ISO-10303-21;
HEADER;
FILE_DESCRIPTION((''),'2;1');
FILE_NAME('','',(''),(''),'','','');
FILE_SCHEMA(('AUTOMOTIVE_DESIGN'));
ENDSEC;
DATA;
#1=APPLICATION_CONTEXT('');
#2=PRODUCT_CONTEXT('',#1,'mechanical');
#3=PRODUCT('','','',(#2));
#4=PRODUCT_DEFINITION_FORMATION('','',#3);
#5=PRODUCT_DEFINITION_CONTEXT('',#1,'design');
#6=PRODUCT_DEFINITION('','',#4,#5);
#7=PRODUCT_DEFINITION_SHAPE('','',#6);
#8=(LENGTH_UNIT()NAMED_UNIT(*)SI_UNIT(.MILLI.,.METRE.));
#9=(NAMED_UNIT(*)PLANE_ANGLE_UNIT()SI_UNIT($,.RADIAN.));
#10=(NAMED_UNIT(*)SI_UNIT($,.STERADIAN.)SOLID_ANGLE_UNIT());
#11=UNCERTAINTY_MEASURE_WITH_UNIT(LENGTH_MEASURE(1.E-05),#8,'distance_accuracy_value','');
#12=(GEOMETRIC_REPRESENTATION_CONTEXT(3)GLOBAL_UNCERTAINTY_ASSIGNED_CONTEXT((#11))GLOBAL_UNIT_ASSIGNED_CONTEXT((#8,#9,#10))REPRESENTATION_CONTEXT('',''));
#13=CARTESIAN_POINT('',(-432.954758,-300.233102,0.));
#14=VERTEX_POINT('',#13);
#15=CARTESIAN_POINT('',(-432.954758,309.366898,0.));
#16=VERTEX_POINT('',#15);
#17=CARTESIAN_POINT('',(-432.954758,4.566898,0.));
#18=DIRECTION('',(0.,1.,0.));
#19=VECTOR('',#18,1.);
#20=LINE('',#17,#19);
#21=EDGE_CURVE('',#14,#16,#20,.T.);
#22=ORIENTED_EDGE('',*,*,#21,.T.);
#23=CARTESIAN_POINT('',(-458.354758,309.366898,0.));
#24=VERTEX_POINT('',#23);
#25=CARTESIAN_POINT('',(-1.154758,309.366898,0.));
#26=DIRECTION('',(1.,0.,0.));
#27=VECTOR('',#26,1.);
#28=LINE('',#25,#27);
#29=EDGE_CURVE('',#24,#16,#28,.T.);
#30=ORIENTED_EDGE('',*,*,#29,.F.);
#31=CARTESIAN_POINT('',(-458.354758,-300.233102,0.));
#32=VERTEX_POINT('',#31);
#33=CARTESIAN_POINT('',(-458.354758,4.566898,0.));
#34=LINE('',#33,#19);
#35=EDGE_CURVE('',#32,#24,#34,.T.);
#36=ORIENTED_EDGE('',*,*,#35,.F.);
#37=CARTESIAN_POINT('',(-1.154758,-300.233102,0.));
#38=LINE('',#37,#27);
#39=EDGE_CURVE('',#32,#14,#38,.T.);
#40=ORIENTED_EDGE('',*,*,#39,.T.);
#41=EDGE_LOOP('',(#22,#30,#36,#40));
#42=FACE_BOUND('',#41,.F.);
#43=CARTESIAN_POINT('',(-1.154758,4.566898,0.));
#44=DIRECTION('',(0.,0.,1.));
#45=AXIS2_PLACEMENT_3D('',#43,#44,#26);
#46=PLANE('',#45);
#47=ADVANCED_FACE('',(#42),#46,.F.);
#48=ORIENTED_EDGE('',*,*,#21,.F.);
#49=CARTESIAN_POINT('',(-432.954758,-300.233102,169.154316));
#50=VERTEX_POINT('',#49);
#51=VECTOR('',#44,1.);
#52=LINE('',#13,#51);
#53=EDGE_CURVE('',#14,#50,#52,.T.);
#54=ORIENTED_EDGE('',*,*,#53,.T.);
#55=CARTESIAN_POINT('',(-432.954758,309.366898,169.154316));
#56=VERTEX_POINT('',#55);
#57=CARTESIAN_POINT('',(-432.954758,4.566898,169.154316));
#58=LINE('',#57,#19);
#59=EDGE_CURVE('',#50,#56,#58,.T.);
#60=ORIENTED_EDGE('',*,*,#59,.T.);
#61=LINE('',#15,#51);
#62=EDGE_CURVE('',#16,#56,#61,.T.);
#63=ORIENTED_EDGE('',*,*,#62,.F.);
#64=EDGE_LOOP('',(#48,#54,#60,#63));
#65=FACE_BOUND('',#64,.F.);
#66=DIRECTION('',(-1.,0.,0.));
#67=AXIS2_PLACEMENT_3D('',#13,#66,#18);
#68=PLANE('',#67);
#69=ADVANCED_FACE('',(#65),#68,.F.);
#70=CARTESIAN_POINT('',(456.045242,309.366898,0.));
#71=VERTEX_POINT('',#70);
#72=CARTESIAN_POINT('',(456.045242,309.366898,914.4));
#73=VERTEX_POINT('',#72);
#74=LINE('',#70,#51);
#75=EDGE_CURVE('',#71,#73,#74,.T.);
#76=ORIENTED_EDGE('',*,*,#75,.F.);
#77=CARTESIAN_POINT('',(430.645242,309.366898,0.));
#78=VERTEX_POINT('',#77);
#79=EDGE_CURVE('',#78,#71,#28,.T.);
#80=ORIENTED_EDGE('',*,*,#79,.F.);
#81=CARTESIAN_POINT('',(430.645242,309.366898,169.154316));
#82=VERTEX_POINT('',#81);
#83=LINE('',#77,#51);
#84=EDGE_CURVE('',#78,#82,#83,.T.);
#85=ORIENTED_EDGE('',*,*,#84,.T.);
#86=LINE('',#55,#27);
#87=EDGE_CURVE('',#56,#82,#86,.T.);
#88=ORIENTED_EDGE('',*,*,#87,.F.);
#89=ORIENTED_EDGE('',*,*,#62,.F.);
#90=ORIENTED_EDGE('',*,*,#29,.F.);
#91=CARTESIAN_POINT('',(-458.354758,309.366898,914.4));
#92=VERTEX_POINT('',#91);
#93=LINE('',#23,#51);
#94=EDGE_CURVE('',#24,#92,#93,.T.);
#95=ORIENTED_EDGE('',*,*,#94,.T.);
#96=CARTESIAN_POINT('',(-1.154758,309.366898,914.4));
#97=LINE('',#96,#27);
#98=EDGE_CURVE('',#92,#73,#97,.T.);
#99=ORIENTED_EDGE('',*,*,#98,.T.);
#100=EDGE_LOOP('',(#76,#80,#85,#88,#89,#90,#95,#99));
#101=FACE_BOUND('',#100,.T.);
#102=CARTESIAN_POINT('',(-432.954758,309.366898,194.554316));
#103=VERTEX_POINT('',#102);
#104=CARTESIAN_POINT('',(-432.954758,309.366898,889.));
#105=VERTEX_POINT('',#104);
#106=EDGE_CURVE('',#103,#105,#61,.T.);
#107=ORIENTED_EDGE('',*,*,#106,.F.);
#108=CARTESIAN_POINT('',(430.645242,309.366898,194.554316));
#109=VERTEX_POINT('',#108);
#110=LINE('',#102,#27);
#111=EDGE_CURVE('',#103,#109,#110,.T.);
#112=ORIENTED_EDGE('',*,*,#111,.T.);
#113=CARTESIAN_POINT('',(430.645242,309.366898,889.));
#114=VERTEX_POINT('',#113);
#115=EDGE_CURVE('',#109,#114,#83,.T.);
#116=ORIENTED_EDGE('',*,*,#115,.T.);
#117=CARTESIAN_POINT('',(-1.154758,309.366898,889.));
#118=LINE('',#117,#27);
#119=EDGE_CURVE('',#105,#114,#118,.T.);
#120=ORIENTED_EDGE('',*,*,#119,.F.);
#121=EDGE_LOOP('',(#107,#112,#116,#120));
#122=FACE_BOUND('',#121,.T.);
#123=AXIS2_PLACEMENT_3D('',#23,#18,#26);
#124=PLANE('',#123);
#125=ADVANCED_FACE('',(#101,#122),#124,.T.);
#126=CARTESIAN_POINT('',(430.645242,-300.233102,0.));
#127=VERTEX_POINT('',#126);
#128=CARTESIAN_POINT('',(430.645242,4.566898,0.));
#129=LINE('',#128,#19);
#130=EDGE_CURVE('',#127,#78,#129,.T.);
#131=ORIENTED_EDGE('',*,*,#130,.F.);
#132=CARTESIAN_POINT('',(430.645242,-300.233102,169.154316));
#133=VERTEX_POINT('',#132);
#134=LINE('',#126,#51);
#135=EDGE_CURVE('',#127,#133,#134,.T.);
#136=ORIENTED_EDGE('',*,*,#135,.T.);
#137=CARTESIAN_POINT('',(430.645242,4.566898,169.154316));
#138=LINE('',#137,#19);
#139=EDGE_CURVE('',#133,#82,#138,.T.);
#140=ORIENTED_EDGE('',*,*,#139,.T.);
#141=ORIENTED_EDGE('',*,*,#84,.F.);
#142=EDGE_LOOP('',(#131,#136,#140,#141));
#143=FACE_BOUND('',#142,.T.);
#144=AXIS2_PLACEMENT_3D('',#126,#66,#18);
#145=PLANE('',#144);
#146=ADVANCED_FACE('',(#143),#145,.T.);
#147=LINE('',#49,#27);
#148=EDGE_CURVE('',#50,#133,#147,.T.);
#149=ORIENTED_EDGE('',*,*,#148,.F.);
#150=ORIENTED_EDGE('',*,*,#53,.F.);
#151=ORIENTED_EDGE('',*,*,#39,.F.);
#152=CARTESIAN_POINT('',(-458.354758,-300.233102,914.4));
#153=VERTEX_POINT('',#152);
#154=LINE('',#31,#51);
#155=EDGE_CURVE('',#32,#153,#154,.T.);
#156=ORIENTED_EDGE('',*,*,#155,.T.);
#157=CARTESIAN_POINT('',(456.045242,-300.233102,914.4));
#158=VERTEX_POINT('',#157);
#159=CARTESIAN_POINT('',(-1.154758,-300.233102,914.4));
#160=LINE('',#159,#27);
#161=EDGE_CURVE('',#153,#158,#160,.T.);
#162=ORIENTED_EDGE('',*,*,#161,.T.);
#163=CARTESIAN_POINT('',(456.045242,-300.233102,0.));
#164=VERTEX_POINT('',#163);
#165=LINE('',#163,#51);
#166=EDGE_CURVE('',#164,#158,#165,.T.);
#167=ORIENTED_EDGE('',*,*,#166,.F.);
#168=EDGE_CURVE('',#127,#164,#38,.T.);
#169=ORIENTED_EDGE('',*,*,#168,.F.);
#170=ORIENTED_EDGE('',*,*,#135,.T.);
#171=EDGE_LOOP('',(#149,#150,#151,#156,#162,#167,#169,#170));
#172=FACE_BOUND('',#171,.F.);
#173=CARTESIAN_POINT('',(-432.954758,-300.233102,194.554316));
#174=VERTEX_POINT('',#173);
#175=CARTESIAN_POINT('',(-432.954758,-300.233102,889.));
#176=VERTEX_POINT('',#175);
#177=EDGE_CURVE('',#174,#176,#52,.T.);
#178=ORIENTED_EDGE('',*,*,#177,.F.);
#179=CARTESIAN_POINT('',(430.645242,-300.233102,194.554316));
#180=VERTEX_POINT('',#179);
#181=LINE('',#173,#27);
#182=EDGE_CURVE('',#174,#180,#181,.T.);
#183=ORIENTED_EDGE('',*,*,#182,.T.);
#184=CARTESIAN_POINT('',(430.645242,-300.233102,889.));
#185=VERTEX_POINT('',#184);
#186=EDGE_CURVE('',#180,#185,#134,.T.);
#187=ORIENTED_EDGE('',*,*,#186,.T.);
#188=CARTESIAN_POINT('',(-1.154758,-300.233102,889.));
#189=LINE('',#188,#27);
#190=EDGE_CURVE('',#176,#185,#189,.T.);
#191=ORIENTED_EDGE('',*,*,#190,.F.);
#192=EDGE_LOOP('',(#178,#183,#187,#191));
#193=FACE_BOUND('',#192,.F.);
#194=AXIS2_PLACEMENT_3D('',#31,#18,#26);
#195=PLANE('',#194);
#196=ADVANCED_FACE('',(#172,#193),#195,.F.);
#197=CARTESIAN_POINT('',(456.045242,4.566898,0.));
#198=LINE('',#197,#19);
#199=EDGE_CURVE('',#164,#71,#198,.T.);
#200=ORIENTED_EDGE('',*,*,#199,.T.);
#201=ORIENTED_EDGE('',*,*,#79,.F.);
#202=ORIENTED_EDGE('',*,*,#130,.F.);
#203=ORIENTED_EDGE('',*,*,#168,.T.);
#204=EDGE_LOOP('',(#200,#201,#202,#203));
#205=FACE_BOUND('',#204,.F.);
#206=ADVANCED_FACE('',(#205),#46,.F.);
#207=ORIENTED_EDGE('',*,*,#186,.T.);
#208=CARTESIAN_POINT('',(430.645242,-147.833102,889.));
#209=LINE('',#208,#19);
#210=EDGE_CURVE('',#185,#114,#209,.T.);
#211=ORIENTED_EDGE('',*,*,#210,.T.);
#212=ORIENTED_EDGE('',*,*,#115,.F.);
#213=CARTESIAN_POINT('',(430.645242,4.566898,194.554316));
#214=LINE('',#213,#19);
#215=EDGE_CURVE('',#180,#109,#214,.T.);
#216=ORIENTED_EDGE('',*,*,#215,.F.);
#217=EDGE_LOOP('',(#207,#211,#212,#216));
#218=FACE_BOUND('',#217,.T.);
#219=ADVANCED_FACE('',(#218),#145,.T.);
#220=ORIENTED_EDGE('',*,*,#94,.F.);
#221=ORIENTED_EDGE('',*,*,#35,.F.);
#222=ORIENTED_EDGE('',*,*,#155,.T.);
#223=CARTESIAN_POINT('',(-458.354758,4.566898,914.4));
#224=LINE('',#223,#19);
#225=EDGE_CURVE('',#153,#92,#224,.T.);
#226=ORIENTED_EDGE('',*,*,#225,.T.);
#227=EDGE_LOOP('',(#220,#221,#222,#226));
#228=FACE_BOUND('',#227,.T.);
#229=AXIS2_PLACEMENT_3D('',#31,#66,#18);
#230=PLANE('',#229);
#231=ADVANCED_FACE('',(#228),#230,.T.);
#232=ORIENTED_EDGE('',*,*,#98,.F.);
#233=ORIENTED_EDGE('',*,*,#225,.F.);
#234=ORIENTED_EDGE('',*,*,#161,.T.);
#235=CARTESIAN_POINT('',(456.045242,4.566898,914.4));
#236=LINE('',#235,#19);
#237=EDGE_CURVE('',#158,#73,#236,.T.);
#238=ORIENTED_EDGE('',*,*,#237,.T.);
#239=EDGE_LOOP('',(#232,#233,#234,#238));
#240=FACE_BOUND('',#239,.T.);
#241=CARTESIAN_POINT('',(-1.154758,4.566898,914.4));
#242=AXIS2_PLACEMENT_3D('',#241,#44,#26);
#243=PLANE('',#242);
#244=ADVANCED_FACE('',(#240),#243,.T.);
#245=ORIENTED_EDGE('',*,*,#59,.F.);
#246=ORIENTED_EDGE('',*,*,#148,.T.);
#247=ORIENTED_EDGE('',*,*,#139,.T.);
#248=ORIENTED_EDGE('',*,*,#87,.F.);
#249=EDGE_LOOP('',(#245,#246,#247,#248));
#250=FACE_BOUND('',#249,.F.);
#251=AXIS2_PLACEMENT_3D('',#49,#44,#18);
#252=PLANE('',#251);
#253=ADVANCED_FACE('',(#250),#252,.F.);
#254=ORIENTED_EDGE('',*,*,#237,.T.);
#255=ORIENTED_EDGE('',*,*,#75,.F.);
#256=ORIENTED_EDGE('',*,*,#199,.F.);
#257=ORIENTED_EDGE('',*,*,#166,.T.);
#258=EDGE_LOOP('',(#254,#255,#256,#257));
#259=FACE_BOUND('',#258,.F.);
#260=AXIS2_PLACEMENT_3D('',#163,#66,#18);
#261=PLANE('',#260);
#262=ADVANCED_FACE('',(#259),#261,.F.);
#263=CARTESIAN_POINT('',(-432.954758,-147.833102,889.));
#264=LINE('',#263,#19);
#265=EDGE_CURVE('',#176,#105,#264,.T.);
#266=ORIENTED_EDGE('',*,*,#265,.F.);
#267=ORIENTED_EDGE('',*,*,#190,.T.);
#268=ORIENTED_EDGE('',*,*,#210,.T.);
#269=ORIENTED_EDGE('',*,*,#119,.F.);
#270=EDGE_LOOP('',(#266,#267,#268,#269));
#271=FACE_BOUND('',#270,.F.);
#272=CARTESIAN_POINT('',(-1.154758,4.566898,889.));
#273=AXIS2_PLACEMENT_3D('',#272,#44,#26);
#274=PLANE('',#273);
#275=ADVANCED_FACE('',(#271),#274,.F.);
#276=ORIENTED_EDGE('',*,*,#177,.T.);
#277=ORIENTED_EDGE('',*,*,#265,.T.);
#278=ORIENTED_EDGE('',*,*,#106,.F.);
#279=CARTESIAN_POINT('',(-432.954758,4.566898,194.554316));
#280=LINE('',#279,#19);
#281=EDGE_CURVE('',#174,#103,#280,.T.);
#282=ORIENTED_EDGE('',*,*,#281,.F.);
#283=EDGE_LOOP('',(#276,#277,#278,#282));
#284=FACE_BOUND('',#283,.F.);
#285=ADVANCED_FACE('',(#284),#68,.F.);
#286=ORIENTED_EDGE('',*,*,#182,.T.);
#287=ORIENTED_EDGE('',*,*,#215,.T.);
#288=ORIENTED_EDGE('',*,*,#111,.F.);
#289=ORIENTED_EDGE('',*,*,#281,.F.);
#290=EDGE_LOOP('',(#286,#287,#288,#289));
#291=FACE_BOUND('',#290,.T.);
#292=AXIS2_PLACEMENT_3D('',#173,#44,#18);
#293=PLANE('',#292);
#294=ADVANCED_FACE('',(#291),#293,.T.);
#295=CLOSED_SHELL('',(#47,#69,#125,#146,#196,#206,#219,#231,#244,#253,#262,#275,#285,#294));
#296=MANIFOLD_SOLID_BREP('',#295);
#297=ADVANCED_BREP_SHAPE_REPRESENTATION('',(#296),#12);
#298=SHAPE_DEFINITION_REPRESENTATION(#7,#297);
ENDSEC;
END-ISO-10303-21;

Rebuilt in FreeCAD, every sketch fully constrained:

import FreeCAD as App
import Part
import Sketcher
from FreeCAD import Vector
Q = App.Units.Quantity


def faces_at(feature, points):
    """Names of the faces that lie closest to the given points."""
    faces = feature.Shape.Faces
    near = lambda p: min(range(len(faces)), key=lambda i: faces[i].distToShape(Part.Vertex(*p))[0])
    return sorted({f"Face{near(p) + 1}" for p in points})


def add_polygon(sketch, points):
    """Adds a closed chain of lines whose ends are joined by coincident constraints."""
    first, n = sketch.GeometryCount, len(points)
    for a, b in zip(points, points[1:] + points[:1]):
        sketch.addGeometry(Part.LineSegment(App.Vector(*a, 0), App.Vector(*b, 0)), False)
    for i in range(n):
        sketch.addConstraint(Sketcher.Constraint("Coincident", first + i, 2, first + (i + 1) % n, 1))

doc = App.newDocument("Part")
params = doc.addObject("Spreadsheet::Sheet", "Params")
for row, (alias, value) in enumerate([
    ("sketch1_width", "36 in"),
    ("sketch1_height", "24 in"),
    ("pad1_length", "36 in"),
    ("thickness_wall", "1 in"),
    ("sketch2_width", "24 in"),
    ("sketch2_height", "1 in"),
], start=1):
    params.set(f"A{row}", alias)
    params.set(f"B{row}", "=" + value)
    params.setAlias(f"B{row}", alias)

body = doc.addObject("PartDesign::Body", "Body")

sketch1 = body.newObject("Sketcher::SketchObject", "Sketch")
sketch1.AttachmentSupport = (doc.getObject("XY_Plane"), [""])
sketch1.MapMode = "FlatFace"
add_polygon(sketch1, [(-458, 309), (-458, -300), (456, -300), (456, 309)])
sketch1.addConstraint([
    Sketcher.Constraint("Vertical", 0),
    Sketcher.Constraint("Horizontal", 1),
    Sketcher.Constraint("Vertical", 2),
    Sketcher.Constraint("Horizontal", 3),
    Sketcher.Constraint("DistanceX", 1, 1, 1, 2, Q("36 in")),
    Sketcher.Constraint("DistanceY", 0, 2, 0, 1, Q("24 in")),
    Sketcher.Constraint("DistanceY", 0, 2, -1, 1, Q("300.233102 mm")),
    Sketcher.Constraint("DistanceX", 0, 2, -1, 1, Q("458.354758 mm")),
])
sketch1.setExpression("Constraints[8]", "Params.sketch1_width")
sketch1.setExpression("Constraints[9]", "Params.sketch1_height")
pad1 = body.newObject("PartDesign::Pad", "Pad")
pad1.Profile = sketch1
pad1.setExpression("Length", "Params.pad1_length")
doc.recompute()

thickness = body.newObject("PartDesign::Thickness", "Thickness")
thickness.Base = (pad1, faces_at(pad1, [(-1.155, 4.567, 0), (-1.155, -300.233, 457.2), (-1.155, 309.367, 457.2)]))
thickness.setExpression("Value", "Params.thickness_wall")
thickness.Reversed = True
thickness.Join = "Arc"

sketch2 = body.newObject("Sketcher::SketchObject", "Sketch001")
sketch2.AttachmentSupport = (doc.getObject("YZ_Plane"), [""])
sketch2.MapMode = "FlatFace"
sketch2.AttachmentOffset = App.Placement(Vector(0, 0, -432.954758), App.Rotation())
add_polygon(sketch2, [(-300, 195), (-300, 169), (309, 169), (309, 195)])
sketch2.addConstraint([
    Sketcher.Constraint("Vertical", 0),
    Sketcher.Constraint("Horizontal", 1),
    Sketcher.Constraint("Vertical", 2),
    Sketcher.Constraint("Horizontal", 3),
    Sketcher.Constraint("DistanceX", 1, 1, 1, 2, Q("24 in")),
    Sketcher.Constraint("DistanceY", 0, 2, 0, 1, Q("1 in")),
    Sketcher.Constraint("DistanceX", 0, 2, -1, 1, Q("300.233102 mm")),
    Sketcher.Constraint("DistanceY", -1, 1, 0, 2, Q("169.154316 mm")),
])
sketch2.setExpression("Constraints[8]", "Params.sketch2_width")
sketch2.setExpression("Constraints[9]", "Params.sketch2_height")
pad2 = body.newObject("PartDesign::Pad", "Pad001")
pad2.Profile = sketch2
pad2.Type = "UpToLast"

doc.recompute()
